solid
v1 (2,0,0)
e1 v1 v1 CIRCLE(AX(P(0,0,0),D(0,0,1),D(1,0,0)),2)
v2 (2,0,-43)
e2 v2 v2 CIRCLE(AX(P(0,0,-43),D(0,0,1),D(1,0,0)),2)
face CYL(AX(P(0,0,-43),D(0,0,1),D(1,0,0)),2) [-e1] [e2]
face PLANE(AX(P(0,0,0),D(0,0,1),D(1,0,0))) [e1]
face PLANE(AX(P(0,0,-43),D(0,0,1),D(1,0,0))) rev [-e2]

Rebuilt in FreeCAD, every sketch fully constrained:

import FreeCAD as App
import Part
import Sketcher
from FreeCAD import Vector
Q = App.Units.Quantity

doc = App.newDocument("Part")
body = doc.addObject("PartDesign::Body", "Body")

# Sketch on XY plane
sketch1 = body.newObject("Sketcher::SketchObject", "Sketch")
sketch1.AttachmentSupport = (doc.getObject("XY_Plane"), [""])
sketch1.MapMode = "FlatFace"
sketch1.addGeometry(Part.Circle(Vector(0, 0, 0), Vector(0, 0, 1), 2), False)
sketch1.addConstraint(Sketcher.Constraint("Coincident", 0, 3, -1, 1))
sketch1.addConstraint(Sketcher.Constraint("Diameter", 0, Q("4 mm")))
pad1 = body.newObject("PartDesign::Pad", "Pad")
pad1.Profile = sketch1
pad1.Length = 43
pad1.Reversed = True

doc.recompute()
